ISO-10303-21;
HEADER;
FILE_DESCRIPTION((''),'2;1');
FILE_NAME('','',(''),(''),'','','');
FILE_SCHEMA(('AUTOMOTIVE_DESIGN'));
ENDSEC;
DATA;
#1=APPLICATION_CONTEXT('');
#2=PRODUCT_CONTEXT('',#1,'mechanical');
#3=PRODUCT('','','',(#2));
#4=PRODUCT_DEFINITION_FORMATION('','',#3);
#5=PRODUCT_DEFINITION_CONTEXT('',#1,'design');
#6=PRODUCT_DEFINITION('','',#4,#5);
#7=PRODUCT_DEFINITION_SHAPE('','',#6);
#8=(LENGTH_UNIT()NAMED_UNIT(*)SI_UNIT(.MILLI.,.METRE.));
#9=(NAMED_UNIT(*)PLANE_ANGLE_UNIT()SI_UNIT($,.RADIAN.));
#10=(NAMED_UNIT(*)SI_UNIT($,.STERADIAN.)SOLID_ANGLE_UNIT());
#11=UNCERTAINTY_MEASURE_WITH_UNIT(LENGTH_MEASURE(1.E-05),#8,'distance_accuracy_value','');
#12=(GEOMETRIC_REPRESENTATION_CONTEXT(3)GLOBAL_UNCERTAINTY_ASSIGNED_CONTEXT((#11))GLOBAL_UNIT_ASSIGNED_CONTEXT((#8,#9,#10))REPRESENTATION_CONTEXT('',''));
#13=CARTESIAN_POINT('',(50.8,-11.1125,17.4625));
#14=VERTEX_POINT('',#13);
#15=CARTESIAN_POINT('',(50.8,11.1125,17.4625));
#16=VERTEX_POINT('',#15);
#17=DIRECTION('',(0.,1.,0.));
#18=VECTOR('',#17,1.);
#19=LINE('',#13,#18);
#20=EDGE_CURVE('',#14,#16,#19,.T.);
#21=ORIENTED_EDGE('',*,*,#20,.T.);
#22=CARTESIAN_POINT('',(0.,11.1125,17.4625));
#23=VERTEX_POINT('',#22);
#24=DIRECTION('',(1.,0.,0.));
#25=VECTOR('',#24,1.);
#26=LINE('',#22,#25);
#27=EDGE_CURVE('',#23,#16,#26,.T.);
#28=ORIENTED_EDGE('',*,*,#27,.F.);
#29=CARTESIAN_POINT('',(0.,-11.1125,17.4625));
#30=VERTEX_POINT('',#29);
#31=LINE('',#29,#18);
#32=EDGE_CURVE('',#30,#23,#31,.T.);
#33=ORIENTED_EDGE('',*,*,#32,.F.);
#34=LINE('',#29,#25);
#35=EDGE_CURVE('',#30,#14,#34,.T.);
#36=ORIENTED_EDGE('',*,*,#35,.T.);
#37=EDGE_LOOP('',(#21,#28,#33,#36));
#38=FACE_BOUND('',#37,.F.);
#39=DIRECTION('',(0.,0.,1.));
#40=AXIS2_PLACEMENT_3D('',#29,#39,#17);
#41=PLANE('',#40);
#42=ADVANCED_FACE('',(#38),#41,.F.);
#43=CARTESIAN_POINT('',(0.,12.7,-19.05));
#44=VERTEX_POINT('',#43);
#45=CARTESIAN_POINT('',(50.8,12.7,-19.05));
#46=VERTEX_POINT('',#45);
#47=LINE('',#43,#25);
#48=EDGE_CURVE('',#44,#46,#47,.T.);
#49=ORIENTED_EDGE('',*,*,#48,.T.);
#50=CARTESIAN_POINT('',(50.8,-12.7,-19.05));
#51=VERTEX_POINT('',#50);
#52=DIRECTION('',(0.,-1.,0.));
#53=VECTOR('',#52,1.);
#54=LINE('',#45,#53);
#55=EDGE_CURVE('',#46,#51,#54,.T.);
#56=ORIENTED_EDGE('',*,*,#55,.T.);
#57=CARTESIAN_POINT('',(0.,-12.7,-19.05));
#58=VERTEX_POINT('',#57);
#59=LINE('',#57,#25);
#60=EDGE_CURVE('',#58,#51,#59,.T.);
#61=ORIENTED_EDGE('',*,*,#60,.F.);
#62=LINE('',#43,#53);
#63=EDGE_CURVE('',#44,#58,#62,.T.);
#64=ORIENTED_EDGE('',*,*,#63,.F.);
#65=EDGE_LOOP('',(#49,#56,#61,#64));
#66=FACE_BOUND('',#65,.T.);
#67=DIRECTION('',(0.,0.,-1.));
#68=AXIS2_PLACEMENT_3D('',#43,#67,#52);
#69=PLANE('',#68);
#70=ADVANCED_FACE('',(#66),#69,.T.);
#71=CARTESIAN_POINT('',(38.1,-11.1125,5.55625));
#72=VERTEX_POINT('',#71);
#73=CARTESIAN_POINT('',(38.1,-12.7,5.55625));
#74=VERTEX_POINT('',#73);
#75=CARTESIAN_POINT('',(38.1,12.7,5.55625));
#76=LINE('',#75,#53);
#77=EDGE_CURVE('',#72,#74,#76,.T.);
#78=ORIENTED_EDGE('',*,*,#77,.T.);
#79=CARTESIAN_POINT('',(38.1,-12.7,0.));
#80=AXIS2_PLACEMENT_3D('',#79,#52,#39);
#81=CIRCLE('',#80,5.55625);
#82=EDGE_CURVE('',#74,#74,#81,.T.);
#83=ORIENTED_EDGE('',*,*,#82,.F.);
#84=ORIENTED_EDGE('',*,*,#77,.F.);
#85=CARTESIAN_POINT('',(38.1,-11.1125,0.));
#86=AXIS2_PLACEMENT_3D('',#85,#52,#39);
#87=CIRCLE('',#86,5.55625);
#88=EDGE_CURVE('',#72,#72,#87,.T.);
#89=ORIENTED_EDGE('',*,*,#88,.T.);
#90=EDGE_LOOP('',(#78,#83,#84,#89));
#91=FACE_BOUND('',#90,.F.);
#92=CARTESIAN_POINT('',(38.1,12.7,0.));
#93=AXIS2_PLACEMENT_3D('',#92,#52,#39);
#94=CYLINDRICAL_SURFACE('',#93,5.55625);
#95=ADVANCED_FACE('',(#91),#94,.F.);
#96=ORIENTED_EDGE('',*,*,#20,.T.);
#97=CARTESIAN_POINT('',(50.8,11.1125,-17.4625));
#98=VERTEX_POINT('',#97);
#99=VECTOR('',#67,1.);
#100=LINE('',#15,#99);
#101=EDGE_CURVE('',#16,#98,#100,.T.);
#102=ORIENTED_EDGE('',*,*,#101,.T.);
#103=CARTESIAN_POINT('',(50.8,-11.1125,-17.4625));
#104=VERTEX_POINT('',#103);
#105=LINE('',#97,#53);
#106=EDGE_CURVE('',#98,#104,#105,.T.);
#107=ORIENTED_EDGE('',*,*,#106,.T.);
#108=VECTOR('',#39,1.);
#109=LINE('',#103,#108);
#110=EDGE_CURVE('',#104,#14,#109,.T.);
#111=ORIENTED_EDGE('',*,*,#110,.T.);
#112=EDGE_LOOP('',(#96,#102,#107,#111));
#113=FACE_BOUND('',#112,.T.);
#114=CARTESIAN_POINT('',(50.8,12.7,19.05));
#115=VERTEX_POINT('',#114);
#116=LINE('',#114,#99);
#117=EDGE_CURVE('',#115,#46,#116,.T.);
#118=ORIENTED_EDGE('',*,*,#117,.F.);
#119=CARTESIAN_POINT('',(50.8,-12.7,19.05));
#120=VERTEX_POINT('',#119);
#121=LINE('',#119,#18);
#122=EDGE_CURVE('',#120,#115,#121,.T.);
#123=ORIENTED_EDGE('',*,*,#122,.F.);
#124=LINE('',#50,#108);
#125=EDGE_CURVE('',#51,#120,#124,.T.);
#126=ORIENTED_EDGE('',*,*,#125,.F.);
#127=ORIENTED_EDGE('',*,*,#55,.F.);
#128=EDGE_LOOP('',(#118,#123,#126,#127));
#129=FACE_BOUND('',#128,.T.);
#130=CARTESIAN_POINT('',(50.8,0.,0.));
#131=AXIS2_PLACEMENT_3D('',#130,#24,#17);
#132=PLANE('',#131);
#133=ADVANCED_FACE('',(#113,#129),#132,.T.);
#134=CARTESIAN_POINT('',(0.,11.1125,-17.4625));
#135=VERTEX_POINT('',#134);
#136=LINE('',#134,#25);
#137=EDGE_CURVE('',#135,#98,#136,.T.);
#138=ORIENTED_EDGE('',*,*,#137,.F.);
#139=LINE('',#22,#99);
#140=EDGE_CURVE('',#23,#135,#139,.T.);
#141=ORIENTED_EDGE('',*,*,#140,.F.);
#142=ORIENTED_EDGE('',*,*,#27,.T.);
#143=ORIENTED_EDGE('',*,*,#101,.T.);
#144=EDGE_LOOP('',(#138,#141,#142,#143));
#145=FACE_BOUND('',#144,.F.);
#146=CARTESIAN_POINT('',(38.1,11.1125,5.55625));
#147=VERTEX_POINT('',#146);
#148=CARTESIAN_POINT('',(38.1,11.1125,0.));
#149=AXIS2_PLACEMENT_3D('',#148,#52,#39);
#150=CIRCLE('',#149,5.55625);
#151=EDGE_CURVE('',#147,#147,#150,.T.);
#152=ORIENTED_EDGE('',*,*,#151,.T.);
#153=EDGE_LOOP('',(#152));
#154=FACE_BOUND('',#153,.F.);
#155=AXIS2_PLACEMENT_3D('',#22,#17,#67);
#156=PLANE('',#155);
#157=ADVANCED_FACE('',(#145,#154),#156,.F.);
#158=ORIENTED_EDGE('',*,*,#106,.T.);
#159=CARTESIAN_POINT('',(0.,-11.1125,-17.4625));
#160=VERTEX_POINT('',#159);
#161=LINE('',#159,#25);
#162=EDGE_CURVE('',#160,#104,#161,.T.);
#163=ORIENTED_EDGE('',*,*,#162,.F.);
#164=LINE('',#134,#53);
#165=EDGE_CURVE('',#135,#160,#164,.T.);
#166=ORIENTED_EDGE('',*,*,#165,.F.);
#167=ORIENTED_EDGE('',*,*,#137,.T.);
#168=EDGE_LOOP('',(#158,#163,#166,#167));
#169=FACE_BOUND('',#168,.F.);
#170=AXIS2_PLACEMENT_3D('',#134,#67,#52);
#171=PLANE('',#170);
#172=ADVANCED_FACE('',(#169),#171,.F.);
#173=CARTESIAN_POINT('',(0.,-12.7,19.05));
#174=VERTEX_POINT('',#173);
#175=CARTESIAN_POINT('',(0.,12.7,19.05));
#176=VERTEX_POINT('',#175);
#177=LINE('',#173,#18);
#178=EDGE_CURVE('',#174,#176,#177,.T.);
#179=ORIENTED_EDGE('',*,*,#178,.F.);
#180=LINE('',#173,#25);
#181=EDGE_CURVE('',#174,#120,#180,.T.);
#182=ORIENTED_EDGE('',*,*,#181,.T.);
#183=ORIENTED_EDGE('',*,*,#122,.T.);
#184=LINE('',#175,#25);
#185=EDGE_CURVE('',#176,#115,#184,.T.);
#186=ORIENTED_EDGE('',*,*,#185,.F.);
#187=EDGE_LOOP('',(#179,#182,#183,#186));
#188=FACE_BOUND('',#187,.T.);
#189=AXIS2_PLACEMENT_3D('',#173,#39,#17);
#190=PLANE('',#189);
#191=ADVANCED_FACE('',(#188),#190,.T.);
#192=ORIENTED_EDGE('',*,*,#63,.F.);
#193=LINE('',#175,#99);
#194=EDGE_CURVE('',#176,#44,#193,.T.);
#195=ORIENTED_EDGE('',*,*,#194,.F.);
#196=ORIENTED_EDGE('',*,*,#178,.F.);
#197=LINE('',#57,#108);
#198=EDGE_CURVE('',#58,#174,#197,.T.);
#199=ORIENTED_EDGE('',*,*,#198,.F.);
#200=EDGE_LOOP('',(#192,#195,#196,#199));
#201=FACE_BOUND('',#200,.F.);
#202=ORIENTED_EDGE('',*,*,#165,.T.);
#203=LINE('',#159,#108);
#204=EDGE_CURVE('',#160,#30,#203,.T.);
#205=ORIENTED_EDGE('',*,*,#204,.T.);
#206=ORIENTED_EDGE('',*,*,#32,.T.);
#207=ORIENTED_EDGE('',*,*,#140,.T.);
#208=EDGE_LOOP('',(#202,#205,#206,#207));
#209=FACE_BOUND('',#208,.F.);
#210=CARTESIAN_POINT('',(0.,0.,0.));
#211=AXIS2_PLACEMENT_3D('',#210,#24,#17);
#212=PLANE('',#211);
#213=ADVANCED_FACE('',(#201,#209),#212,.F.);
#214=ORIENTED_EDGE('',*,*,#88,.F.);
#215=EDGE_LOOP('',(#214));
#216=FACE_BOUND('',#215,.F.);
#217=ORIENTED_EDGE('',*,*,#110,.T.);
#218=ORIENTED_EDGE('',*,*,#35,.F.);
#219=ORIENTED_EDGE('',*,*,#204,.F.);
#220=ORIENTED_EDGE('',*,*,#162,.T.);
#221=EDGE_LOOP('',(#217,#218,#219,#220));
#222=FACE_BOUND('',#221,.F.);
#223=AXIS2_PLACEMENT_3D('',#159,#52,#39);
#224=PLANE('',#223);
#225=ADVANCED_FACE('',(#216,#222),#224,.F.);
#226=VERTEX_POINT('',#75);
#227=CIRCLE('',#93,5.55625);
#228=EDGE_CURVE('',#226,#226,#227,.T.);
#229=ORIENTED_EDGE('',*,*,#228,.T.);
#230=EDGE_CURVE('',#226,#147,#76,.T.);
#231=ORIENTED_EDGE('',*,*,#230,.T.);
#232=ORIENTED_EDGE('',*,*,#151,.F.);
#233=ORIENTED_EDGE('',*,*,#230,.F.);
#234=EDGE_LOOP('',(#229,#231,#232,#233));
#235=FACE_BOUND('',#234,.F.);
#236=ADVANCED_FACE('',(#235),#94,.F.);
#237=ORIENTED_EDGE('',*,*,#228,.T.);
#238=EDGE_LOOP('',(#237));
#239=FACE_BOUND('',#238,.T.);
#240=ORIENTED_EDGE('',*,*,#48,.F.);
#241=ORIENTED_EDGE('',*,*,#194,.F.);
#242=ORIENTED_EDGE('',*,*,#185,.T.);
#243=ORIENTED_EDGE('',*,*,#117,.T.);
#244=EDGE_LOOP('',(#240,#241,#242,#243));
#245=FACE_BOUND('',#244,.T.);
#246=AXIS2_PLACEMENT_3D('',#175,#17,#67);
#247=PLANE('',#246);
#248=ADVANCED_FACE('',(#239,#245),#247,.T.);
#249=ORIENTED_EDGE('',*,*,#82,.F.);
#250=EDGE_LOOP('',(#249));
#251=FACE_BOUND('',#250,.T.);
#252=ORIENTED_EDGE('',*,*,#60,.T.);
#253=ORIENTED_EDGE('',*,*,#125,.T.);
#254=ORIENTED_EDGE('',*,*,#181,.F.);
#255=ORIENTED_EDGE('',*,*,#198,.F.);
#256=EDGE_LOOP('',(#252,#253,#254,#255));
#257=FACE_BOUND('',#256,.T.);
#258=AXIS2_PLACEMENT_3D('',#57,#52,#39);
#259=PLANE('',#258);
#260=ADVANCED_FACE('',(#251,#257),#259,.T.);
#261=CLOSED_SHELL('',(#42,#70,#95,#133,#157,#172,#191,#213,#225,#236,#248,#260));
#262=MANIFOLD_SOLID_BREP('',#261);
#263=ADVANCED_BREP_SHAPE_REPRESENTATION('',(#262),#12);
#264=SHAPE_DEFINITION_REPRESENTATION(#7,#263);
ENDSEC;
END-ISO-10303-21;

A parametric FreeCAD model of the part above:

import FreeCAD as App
import Part
import Sketcher

V = App.Vector
Q = App.Units.Quantity

doc = App.newDocument("Part")
body = doc.addObject("PartDesign::Body", "Body")

sketch1 = body.newObject("Sketcher::SketchObject", "Sketch")
sketch1.AttachmentSupport = (doc.getObject("YZ_Plane"), [""])
sketch1.MapMode = "FlatFace"
sketch1.addGeometry([
    Part.LineSegment(V(13, 19, 0), V(-13, 19, 0)),
    Part.LineSegment(V(-13, 19, 0), V(-13, -19, 0)),
    Part.LineSegment(V(-13, -19, 0), V(13, -19, 0)),
    Part.LineSegment(V(13, -19, 0), V(13, 19, 0)),
    Part.LineSegment(V(-11, -17, 0), V(-11, 17, 0)),
    Part.LineSegment(V(-11, 17, 0), V(11, 17, 0)),
    Part.LineSegment(V(11, 17, 0), V(11, -17, 0)),
    Part.LineSegment(V(11, -17, 0), V(-11, -17, 0)),
], False)
sketch1.addConstraint([
    Sketcher.Constraint("Coincident", 0, 2, 1, 1),
    Sketcher.Constraint("Coincident", 1, 2, 2, 1),
    Sketcher.Constraint("Coincident", 2, 2, 3, 1),
    Sketcher.Constraint("Coincident", 3, 2, 0, 1),
    Sketcher.Constraint("Coincident", 4, 2, 5, 1),
    Sketcher.Constraint("Coincident", 5, 2, 6, 1),
    Sketcher.Constraint("Coincident", 6, 2, 7, 1),
    Sketcher.Constraint("Coincident", 7, 2, 4, 1),
    Sketcher.Constraint("Horizontal", 0),
    Sketcher.Constraint("Vertical", 1),
    Sketcher.Constraint("Horizontal", 2),
    Sketcher.Constraint("Vertical", 3),
    Sketcher.Constraint("Vertical", 4),
    Sketcher.Constraint("Horizontal", 5),
    Sketcher.Constraint("Vertical", 6),
    Sketcher.Constraint("Horizontal", 7),
    Sketcher.Constraint("Symmetric", 0, 2, 2, 2, -1, 1),
    Sketcher.Constraint("Symmetric", 4, 2, 6, 2, -1, 1),
    Sketcher.Constraint("DistanceX", 0, 2, 0, 1, Q("1 in")),
    Sketcher.Constraint("DistanceY", 1, 2, 1, 1, Q("1.5 in")),
    Sketcher.Constraint("DistanceX", 0, 2, 4, 2, Q("0.0625 in")),
    Sketcher.Constraint("DistanceY", 4, 2, 0, 2, Q("0.0625 in")),
])
pad1 = body.newObject("PartDesign::Pad", "Pad")
pad1.Profile = sketch1
pad1.Length = Q("2 in")

sketch2 = body.newObject("Sketcher::SketchObject", "Sketch001")
sketch2.AttachmentSupport = (doc.getObject("XZ_Plane"), [""])
sketch2.MapMode = "FlatFace"
sketch2.AttachmentOffset = App.Placement(V(0, 0, -0.5 * 25.4), App.Rotation())
sketch2.addGeometry(Part.Circle(V(38, 0, 0), V(0, 0, 1), 6), False)
sketch2.addConstraint([
    Sketcher.Constraint("PointOnObject", 0, 3, -1),
    Sketcher.Constraint("Diameter", 0, Q("0.4375 in")),
    Sketcher.Constraint("DistanceX", -1, 1, 0, 3, Q("1.5 in")),
])
doc.recompute()
hole = body.newObject("PartDesign::Hole", "Hole")
hole.Profile = sketch2
hole.ThreadType = "None"
hole.Diameter = Q("0.4375 in")
hole.DepthType = "ThroughAll"
hole.Reversed = True

doc.recompute()
